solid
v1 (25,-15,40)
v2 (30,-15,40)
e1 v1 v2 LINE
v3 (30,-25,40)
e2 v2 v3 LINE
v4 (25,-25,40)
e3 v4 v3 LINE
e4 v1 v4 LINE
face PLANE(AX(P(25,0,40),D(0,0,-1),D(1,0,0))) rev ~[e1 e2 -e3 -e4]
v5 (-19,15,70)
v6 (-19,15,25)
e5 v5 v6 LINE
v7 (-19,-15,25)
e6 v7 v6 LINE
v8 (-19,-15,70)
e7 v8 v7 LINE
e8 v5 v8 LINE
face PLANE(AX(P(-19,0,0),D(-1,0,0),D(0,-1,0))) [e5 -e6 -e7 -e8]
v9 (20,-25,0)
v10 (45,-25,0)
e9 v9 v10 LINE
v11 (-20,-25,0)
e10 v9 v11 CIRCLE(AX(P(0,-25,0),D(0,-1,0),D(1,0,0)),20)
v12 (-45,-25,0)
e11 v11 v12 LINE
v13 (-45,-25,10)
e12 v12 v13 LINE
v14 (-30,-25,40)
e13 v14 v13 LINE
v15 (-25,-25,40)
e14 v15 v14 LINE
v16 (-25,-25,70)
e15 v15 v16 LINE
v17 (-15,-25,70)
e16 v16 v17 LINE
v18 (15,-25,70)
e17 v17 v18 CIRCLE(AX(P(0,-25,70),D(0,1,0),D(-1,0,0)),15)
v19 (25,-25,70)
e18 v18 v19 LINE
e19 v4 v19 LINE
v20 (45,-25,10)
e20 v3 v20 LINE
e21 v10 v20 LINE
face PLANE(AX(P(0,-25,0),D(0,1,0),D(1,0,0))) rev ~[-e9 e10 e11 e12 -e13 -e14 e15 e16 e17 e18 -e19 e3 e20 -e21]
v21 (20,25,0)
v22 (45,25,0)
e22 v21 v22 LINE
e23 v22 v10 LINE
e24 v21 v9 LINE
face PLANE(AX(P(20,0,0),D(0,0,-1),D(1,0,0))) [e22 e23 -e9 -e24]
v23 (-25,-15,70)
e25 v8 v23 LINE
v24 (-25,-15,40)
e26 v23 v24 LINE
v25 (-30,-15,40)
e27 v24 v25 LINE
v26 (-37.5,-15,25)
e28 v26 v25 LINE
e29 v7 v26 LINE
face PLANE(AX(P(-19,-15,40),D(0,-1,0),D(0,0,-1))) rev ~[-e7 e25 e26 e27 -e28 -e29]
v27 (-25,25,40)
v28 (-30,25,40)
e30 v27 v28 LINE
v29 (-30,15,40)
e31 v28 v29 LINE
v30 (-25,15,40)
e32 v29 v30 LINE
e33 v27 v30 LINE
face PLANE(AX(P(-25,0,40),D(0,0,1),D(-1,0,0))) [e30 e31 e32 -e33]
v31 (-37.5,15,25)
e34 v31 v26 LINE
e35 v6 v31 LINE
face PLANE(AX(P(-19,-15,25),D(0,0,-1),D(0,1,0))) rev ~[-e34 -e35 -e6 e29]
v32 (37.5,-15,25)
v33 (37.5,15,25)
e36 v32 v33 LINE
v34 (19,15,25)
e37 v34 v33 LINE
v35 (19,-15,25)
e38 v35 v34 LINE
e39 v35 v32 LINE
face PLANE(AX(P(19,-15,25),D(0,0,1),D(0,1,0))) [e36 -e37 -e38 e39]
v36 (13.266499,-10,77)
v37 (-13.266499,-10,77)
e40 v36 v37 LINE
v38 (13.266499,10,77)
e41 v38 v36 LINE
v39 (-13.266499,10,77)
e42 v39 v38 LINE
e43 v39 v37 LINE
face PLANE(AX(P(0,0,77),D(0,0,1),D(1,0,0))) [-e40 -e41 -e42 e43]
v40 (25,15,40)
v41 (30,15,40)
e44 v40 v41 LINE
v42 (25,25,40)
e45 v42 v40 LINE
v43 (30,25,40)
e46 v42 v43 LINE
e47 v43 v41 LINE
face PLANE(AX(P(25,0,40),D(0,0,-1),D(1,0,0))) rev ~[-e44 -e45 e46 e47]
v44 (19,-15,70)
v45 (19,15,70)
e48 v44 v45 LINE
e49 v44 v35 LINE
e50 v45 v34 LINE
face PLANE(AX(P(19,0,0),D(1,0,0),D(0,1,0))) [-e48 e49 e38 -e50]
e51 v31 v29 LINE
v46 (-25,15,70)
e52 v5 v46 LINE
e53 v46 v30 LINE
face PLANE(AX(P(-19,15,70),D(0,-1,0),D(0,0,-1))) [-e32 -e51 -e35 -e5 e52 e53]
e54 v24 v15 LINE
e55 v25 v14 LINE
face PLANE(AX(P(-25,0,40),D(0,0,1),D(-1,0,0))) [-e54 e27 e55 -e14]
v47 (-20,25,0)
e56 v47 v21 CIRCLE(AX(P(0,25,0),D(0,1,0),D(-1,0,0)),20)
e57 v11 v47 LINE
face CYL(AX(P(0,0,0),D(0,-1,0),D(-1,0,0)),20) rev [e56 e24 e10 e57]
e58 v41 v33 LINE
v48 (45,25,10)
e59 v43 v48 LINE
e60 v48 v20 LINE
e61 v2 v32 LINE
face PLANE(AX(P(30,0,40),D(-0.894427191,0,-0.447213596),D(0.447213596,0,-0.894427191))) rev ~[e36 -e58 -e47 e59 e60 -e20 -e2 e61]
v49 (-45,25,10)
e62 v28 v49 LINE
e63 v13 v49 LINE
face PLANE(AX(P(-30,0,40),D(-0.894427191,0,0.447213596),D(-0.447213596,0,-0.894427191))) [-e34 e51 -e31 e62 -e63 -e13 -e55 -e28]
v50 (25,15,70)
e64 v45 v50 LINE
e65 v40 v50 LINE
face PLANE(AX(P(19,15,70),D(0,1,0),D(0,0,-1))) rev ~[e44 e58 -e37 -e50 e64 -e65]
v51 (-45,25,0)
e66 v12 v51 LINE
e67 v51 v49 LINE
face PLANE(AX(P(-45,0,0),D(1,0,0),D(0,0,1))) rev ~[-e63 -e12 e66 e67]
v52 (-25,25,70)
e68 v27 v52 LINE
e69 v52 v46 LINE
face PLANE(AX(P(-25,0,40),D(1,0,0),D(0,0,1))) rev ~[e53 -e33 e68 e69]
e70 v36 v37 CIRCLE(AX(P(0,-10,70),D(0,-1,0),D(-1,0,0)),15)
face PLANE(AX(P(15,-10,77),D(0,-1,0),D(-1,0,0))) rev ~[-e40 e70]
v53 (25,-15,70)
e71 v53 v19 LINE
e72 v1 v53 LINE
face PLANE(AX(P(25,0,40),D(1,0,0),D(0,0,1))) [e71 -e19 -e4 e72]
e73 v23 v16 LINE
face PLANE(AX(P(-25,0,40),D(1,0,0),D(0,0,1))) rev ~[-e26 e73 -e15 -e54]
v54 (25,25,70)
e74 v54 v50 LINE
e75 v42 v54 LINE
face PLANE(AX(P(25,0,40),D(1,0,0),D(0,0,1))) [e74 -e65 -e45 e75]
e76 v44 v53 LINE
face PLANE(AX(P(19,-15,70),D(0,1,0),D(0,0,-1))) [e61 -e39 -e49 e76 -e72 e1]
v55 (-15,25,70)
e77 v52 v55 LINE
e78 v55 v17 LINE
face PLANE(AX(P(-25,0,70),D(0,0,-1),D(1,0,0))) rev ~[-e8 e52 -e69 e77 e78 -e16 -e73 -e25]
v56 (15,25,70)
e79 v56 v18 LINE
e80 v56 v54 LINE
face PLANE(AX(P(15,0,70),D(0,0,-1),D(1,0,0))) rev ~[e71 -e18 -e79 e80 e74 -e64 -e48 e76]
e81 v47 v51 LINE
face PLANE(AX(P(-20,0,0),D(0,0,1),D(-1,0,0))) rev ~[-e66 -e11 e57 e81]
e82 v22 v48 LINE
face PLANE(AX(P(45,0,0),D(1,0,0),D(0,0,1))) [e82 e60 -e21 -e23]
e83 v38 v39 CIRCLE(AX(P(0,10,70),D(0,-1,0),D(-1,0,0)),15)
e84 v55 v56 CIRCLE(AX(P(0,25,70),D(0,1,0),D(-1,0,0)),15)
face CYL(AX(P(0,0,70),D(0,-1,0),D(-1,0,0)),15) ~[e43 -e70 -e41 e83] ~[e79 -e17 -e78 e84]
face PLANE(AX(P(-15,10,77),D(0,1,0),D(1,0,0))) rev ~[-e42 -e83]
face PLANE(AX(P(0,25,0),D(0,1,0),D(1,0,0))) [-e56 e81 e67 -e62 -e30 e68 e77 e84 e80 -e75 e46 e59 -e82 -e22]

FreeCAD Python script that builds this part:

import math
import FreeCAD as App
import Part
import Sketcher

V = App.Vector

doc = App.newDocument("Part")
body = doc.addObject("PartDesign::Body", "Body")

# Sketch on XZ plane
sketch1 = body.newObject("Sketcher::SketchObject", "Sketch")
sketch1.AttachmentSupport = (doc.getObject("XZ_Plane"), [""])
sketch1.MapMode = "FlatFace"
sketch1.addGeometry(Part.ArcOfCircle(Part.Circle(V(0, 0, 0), V(0, 0, 1), 20), math.radians(0), math.radians(180)), False)
sketch1.addGeometry(Part.LineSegment(V(-20, 0, 0), V(-45, 0, 0)), False)
sketch1.addGeometry(Part.LineSegment(V(-45, 0, 0), V(-45, 10, 0)), False)
sketch1.addGeometry(Part.LineSegment(V(-45, 10, 0), V(-30, 40, 0)), False)
sketch1.addGeometry(Part.LineSegment(V(-30, 40, 0), V(-25, 40, 0)), False)
sketch1.addGeometry(Part.LineSegment(V(-25, 40, 0), V(-25, 70, 0)), False)
sketch1.addGeometry(Part.LineSegment(V(-25, 70, 0), V(-15, 70, 0)), False)
sketch1.addGeometry(Part.ArcOfCircle(Part.Circle(V(0, 70, 0), V(0, 0, 1), 15), math.radians(0), math.radians(180)), False)
sketch1.addGeometry(Part.LineSegment(V(15, 70, 0), V(25, 70, 0)), False)
sketch1.addGeometry(Part.LineSegment(V(25, 70, 0), V(25, 40, 0)), False)
sketch1.addGeometry(Part.LineSegment(V(25, 40, 0), V(30, 40, 0)), False)
sketch1.addGeometry(Part.LineSegment(V(30, 40, 0), V(45, 10, 0)), False)
sketch1.addGeometry(Part.LineSegment(V(45, 10, 0), V(45, 0, 0)), False)
sketch1.addGeometry(Part.LineSegment(V(45, 0, 0), V(20, 0, 0)), False)
sketch1.addConstraint(Sketcher.Constraint("Coincident", 0, 2, 1, 1))
sketch1.addConstraint(Sketcher.Constraint("Coincident", 1, 2, 2, 1))
sketch1.addConstraint(Sketcher.Constraint("Coincident", 2, 2, 3, 1))
sketch1.addConstraint(Sketcher.Constraint("Coincident", 3, 2, 4, 1))
sketch1.addConstraint(Sketcher.Constraint("Coincident", 4, 2, 5, 1))
sketch1.addConstraint(Sketcher.Constraint("Coincident", 5, 2, 6, 1))
sketch1.addConstraint(Sketcher.Constraint("Coincident", 6, 2, 7, 2))
sketch1.addConstraint(Sketcher.Constraint("Coincident", 7, 1, 8, 1))
sketch1.addConstraint(Sketcher.Constraint("Coincident", 8, 2, 9, 1))
sketch1.addConstraint(Sketcher.Constraint("Coincident", 9, 2, 10, 1))
sketch1.addConstraint(Sketcher.Constraint("Coincident", 10, 2, 11, 1))
sketch1.addConstraint(Sketcher.Constraint("Coincident", 11, 2, 12, 1))
sketch1.addConstraint(Sketcher.Constraint("Coincident", 12, 2, 13, 1))
sketch1.addConstraint(Sketcher.Constraint("Coincident", 13, 2, 0, 1))
sketch1.addConstraint(Sketcher.Constraint("Horizontal", 1))
sketch1.addConstraint(Sketcher.Constraint("Vertical", 2))
sketch1.addConstraint(Sketcher.Constraint("Horizontal", 4))
sketch1.addConstraint(Sketcher.Constraint("Vertical", 5))
sketch1.addConstraint(Sketcher.Constraint("Horizontal", 6))
sketch1.addConstraint(Sketcher.Constraint("Horizontal", 8))
sketch1.addConstraint(Sketcher.Constraint("Vertical", 9))
sketch1.addConstraint(Sketcher.Constraint("Horizontal", 10))
sketch1.addConstraint(Sketcher.Constraint("Vertical", 12))
sketch1.addConstraint(Sketcher.Constraint("Horizontal", 13))
sketch1.addConstraint(Sketcher.Constraint("Coincident", 0, 3, -1, 1))
sketch1.addConstraint(Sketcher.Constraint("Symmetric", 1, 2, 12, 2, -1, 1))
sketch1.addConstraint(Sketcher.Constraint("Symmetric", 6, 2, 7, 1, -2))
sketch1.addConstraint(Sketcher.Constraint("Symmetric", 4, 2, 9, 2, -2))
sketch1.addConstraint(Sketcher.Constraint("PointOnObject", 0, 2, -1))
sketch1.addConstraint(Sketcher.Constraint("Horizontal", 7, 3, 5, 2))
sketch1.addConstraint(Sketcher.Constraint("Horizontal", 2, 2, 11, 2))
sketch1.addConstraint(Sketcher.Constraint("Equal", 4, 10))
sketch1.addConstraint(Sketcher.Constraint("Equal", 8, 2))
sketch1.addConstraint(Sketcher.Constraint("Radius", 0, 20.0))
sketch1.addConstraint(Sketcher.Constraint("Radius", 7, 15.0))
sketch1.addConstraint(Sketcher.Constraint("DistanceX", 1, 2, 1, 1, 25.0))
sketch1.addConstraint(Sketcher.Constraint("DistanceX", 6, 1, 6, 2, 10.0))
sketch1.addConstraint(Sketcher.Constraint("DistanceY", 5, 1, 5, 2, 30.0))
sketch1.addConstraint(Sketcher.Constraint("DistanceX", 3, 2, -1, 1, 30.0))
sketch1.addConstraint(Sketcher.Constraint("DistanceY", -1, 1, 3, 2, 40.0))
pad1 = body.newObject("PartDesign::Pad", "Pad")
pad1.Profile = sketch1
pad1.Length = 50
pad1.Midplane = True

# Sketch on YZ plane
sketch2 = body.newObject("Sketcher::SketchObject", "Sketch001")
sketch2.AttachmentSupport = (doc.getObject("YZ_Plane"), [""])
sketch2.MapMode = "FlatFace"
sketch2.AttachmentOffset = App.Placement(V(0, 0, -19), App.Rotation())
sketch2.addGeometry(Part.LineSegment(V(-15, 70, 0), V(15, 70, 0)), False)
sketch2.addGeometry(Part.LineSegment(V(15, 70, 0), V(15, 25, 0)), False)
sketch2.addGeometry(Part.LineSegment(V(15, 25, 0), V(-15, 25, 0)), False)
sketch2.addGeometry(Part.LineSegment(V(-15, 25, 0), V(-15, 70, 0)), False)
sketch2.addConstraint(Sketcher.Constraint("Coincident", 0, 2, 1, 1))
sketch2.addConstraint(Sketcher.Constraint("Coincident", 1, 2, 2, 1))
sketch2.addConstraint(Sketcher.Constraint("Coincident", 2, 2, 3, 1))
sketch2.addConstraint(Sketcher.Constraint("Coincident", 3, 2, 0, 1))
sketch2.addConstraint(Sketcher.Constraint("Horizontal", 0))
sketch2.addConstraint(Sketcher.Constraint("Vertical", 1))
sketch2.addConstraint(Sketcher.Constraint("Horizontal", 2))
sketch2.addConstraint(Sketcher.Constraint("Vertical", 3))
sketch2.addConstraint(Sketcher.Constraint("DistanceX", 0, 1, 0, 2, 30.0))
sketch2.addConstraint(Sketcher.Constraint("DistanceY", 1, 2, 1, 1, 45.0))
sketch2.addConstraint(Sketcher.Constraint("DistanceX", -1, 1, 0, 2, 15.0))
sketch2.addConstraint(Sketcher.Constraint("DistanceY", -1, 1, 0, 2, 70.0))
pocket1 = body.newObject("PartDesign::Pocket", "Pocket")
pocket1.Profile = sketch2
pocket1.Length = 30

# Sketch on YZ plane
sketch3 = body.newObject("Sketcher::SketchObject", "Sketch002")
sketch3.AttachmentSupport = (doc.getObject("YZ_Plane"), [""])
sketch3.MapMode = "FlatFace"
sketch3.AttachmentOffset = App.Placement(V(0, 0, 19), App.Rotation())
sketch3.addGeometry(Part.LineSegment(V(15, 70, 0), V(-15, 70, 0)), False)
sketch3.addGeometry(Part.LineSegment(V(-15, 70, 0), V(-15, 25, 0)), False)
sketch3.addGeometry(Part.LineSegment(V(-15, 25, 0), V(15, 25, 0)), False)
sketch3.addGeometry(Part.LineSegment(V(15, 25, 0), V(15, 70, 0)), False)
sketch3.addConstraint(Sketcher.Constraint("Coincident", 0, 2, 1, 1))
sketch3.addConstraint(Sketcher.Constraint("Coincident", 1, 2, 2, 1))
sketch3.addConstraint(Sketcher.Constraint("Coincident", 2, 2, 3, 1))
sketch3.addConstraint(Sketcher.Constraint("Coincident", 3, 2, 0, 1))
sketch3.addConstraint(Sketcher.Constraint("Horizontal", 0))
sketch3.addConstraint(Sketcher.Constraint("Vertical", 1))
sketch3.addConstraint(Sketcher.Constraint("Horizontal", 2))
sketch3.addConstraint(Sketcher.Constraint("Vertical", 3))
sketch3.addConstraint(Sketcher.Constraint("DistanceX", 0, 2, 0, 1, 30.0))
sketch3.addConstraint(Sketcher.Constraint("DistanceY", 1, 2, 1, 1, 45.0))
sketch3.addConstraint(Sketcher.Constraint("DistanceX", 0, 2, -1, 1, 15.0))
sketch3.addConstraint(Sketcher.Constraint("DistanceY", -1, 1, 0, 2, 70.0))
pocket2 = body.newObject("PartDesign::Pocket", "Pocket001")
pocket2.Profile = sketch3
pocket2.Length = 20
pocket2.Reversed = True

# Sketch on XY plane
sketch4 = body.newObject("Sketcher::SketchObject", "Sketch003")
sketch4.AttachmentSupport = (doc.getObject("XY_Plane"), [""])
sketch4.MapMode = "FlatFace"
sketch4.AttachmentOffset = App.Placement(V(0, 0, 77), App.Rotation())
sketch4.addGeometry(Part.LineSegment(V(-15, 10, 0), V(-15, -10, 0)), False)
sketch4.addGeometry(Part.LineSegment(V(-15, -10, 0), V(15, -10, 0)), False)
sketch4.addGeometry(Part.LineSegment(V(15, -10, 0), V(15, 10, 0)), False)
sketch4.addGeometry(Part.LineSegment(V(15, 10, 0), V(-15, 10, 0)), False)
sketch4.addConstraint(Sketcher.Constraint("Coincident", 0, 2, 1, 1))
sketch4.addConstraint(Sketcher.Constraint("Coincident", 1, 2, 2, 1))
sketch4.addConstraint(Sketcher.Constraint("Coincident", 2, 2, 3, 1))
sketch4.addConstraint(Sketcher.Constraint("Coincident", 3, 2, 0, 1))
sketch4.addConstraint(Sketcher.Constraint("Vertical", 0))
sketch4.addConstraint(Sketcher.Constraint("Horizontal", 1))
sketch4.addConstraint(Sketcher.Constraint("Vertical", 2))
sketch4.addConstraint(Sketcher.Constraint("Horizontal", 3))
sketch4.addConstraint(Sketcher.Constraint("Symmetric", 0, 2, 2, 2, -1, 1))
sketch4.addConstraint(Sketcher.Constraint("DistanceY", 0, 2, 0, 1, 20.0))
sketch4.addConstraint(Sketcher.Constraint("DistanceX", 1, 1, 1, 2, 30.0))
pocket3 = body.newObject("PartDesign::Pocket", "Pocket002")
pocket3.Profile = sketch4
pocket3.Length = 10
pocket3.Reversed = True

doc.recompute()
